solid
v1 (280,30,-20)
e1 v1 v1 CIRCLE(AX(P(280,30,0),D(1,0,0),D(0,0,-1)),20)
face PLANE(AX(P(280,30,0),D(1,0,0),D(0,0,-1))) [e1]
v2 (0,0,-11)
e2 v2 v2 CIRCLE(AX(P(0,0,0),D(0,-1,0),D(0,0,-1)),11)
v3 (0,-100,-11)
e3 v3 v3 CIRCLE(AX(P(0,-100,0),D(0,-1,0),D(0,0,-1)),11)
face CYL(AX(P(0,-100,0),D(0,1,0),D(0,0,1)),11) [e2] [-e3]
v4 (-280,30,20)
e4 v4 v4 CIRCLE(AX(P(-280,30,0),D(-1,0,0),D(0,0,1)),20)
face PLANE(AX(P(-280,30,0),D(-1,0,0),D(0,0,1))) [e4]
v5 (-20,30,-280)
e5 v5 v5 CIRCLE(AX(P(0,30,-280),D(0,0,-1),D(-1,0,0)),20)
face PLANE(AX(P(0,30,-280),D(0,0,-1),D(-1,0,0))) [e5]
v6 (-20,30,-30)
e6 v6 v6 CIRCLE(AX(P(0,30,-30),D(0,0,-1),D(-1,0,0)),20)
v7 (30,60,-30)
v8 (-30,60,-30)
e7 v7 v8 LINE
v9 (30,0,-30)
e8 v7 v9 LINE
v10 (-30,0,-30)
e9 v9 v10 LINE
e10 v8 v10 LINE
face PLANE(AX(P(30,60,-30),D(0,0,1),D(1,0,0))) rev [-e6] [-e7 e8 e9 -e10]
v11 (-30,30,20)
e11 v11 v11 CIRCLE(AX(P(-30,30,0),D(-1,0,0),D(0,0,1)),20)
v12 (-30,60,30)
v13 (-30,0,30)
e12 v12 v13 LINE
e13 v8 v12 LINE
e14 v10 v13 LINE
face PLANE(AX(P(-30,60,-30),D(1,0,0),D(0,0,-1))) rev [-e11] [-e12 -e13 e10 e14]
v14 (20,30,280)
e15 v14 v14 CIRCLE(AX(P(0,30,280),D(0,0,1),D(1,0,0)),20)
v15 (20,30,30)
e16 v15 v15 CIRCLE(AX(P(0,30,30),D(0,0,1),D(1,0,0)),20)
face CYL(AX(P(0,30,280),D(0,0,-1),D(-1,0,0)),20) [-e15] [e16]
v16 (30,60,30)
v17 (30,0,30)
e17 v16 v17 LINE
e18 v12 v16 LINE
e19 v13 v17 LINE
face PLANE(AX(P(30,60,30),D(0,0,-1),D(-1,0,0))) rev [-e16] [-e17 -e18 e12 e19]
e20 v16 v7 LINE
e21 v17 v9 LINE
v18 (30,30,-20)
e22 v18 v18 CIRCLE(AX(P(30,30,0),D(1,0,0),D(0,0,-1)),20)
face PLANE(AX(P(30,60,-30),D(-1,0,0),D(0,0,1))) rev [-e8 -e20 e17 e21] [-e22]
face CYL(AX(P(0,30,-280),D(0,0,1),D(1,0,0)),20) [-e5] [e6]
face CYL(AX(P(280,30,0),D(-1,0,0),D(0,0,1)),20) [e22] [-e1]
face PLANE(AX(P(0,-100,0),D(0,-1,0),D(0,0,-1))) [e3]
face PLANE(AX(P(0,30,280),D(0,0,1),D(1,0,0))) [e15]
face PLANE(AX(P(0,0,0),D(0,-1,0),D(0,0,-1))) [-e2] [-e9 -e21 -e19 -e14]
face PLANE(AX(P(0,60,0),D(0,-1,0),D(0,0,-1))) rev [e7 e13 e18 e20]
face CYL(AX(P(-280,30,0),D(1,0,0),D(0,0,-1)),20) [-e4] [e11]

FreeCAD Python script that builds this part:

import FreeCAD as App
import Part
import Sketcher
from FreeCAD import Vector
Q = App.Units.Quantity

doc = App.newDocument("Part")
params = doc.addObject("Spreadsheet::Sheet", "Params")
for row, (alias, value) in enumerate([
    ("sketch1_width", "60 mm"),
    ("pad1_length", "60 mm"),
    ("sketch2_diameter", "40 mm"),
    ("pad2_length", "250 mm"),
    ("sketch3_diameter", "40 mm"),
    ("pad3_length", "250 mm"),
    ("sketch4_diameter", "40 mm"),
    ("pad4_length", "250 mm"),
    ("sketch5_diameter", "40 mm"),
    ("pad5_length", "250 mm"),
    ("sketch6_diameter", "22 mm"),
    ("pad6_length", "100 mm"),
], start=1):
    params.set(f"A{row}", alias)
    params.set(f"B{row}", "=" + value)
    params.setAlias(f"B{row}", alias)

body = doc.addObject("PartDesign::Body", "Body")

sketch1 = doc.addObject("Sketcher::SketchObject", "Sketch")
body.addObject(sketch1)
sketch1.AttachmentSupport = (doc.XZ_Plane, [""])
sketch1.MapMode = "FlatFace"
sketch1.addGeometry(Part.LineSegment(Vector(-30, -30, 0), Vector(-30, 30, 0)), False)
sketch1.addGeometry(Part.LineSegment(Vector(-30, 30, 0), Vector(30, 30, 0)), False)
sketch1.addGeometry(Part.LineSegment(Vector(30, 30, 0), Vector(30, -30, 0)), False)
sketch1.addGeometry(Part.LineSegment(Vector(30, -30, 0), Vector(-30, -30, 0)), False)
sketch1.addConstraint(Sketcher.Constraint("Coincident", 0, 2, 1, 1))
sketch1.addConstraint(Sketcher.Constraint("Coincident", 1, 2, 2, 1))
sketch1.addConstraint(Sketcher.Constraint("Coincident", 2, 2, 3, 1))
sketch1.addConstraint(Sketcher.Constraint("Coincident", 3, 2, 0, 1))
sketch1.addConstraint(Sketcher.Constraint("Vertical", 0))
sketch1.addConstraint(Sketcher.Constraint("Horizontal", 1))
sketch1.addConstraint(Sketcher.Constraint("Vertical", 2))
sketch1.addConstraint(Sketcher.Constraint("Horizontal", 3))
sketch1.addConstraint(Sketcher.Constraint("Symmetric", 0, 2, 2, 2, -1, 1))
sketch1.addConstraint(Sketcher.Constraint("Equal", 3, 0))
sketch1.addConstraint(Sketcher.Constraint("DistanceX", 1, 1, 1, 2, Q("60 mm")))
sketch1.setExpression("Constraints[10]", "Params.sketch1_width")
pad1 = doc.addObject("PartDesign::Pad", "Pad")
body.addObject(pad1)
pad1.Profile = sketch1
pad1.setExpression("Length", "Params.pad1_length")
pad1.Reversed = True

sketch2 = doc.addObject("Sketcher::SketchObject", "Sketch001")
body.addObject(sketch2)
sketch2.AttachmentSupport = (doc.XY_Plane, [""])
sketch2.MapMode = "FlatFace"
sketch2.AttachmentOffset = App.Placement(Vector(0, 0, 30), App.Rotation())
sketch2.addGeometry(Part.Circle(Vector(0, 30, 0), Vector(0, 0, 1), 20), False)
sketch2.addConstraint(Sketcher.Constraint("PointOnObject", 0, 3, -2))
sketch2.addConstraint(Sketcher.Constraint("Diameter", 0, Q("40 mm")))
sketch2.addConstraint(Sketcher.Constraint("DistanceY", -1, 1, 0, 3, Q("30 mm")))
sketch2.setExpression("Constraints[1]", "Params.sketch2_diameter")
pad2 = doc.addObject("PartDesign::Pad", "Pad001")
body.addObject(pad2)
pad2.Profile = sketch2
pad2.setExpression("Length", "Params.pad2_length")

sketch3 = doc.addObject("Sketcher::SketchObject", "Sketch002")
body.addObject(sketch3)
sketch3.AttachmentSupport = (doc.YZ_Plane, [""])
sketch3.MapMode = "FlatFace"
sketch3.AttachmentOffset = App.Placement(Vector(0, 0, -30), App.Rotation())
sketch3.addGeometry(Part.Circle(Vector(30, 0, 0), Vector(0, 0, 1), 20), False)
sketch3.addConstraint(Sketcher.Constraint("PointOnObject", 0, 3, -1))
sketch3.addConstraint(Sketcher.Constraint("Diameter", 0, Q("40 mm")))
sketch3.addConstraint(Sketcher.Constraint("DistanceX", -1, 1, 0, 3, Q("30 mm")))
sketch3.setExpression("Constraints[1]", "Params.sketch3_diameter")
pad3 = doc.addObject("PartDesign::Pad", "Pad002")
body.addObject(pad3)
pad3.Profile = sketch3
pad3.setExpression("Length", "Params.pad3_length")
pad3.Reversed = True

sketch4 = doc.addObject("Sketcher::SketchObject", "Sketch003")
body.addObject(sketch4)
sketch4.AttachmentSupport = (doc.XY_Plane, [""])
sketch4.MapMode = "FlatFace"
sketch4.AttachmentOffset = App.Placement(Vector(0, 0, -280), App.Rotation())
sketch4.addGeometry(Part.Circle(Vector(0, 30, 0), Vector(0, 0, 1), 20), False)
sketch4.addConstraint(Sketcher.Constraint("PointOnObject", 0, 3, -2))
sketch4.addConstraint(Sketcher.Constraint("Diameter", 0, Q("40 mm")))
sketch4.addConstraint(Sketcher.Constraint("DistanceY", -1, 1, 0, 3, Q("30 mm")))
sketch4.setExpression("Constraints[1]", "Params.sketch4_diameter")
pad4 = doc.addObject("PartDesign::Pad", "Pad003")
body.addObject(pad4)
pad4.Profile = sketch4
pad4.setExpression("Length", "Params.pad4_length")

sketch5 = doc.addObject("Sketcher::SketchObject", "Sketch004")
body.addObject(sketch5)
sketch5.AttachmentSupport = (doc.YZ_Plane, [""])
sketch5.MapMode = "FlatFace"
sketch5.AttachmentOffset = App.Placement(Vector(0, 0, 280), App.Rotation())
sketch5.addGeometry(Part.Circle(Vector(30, 0, 0), Vector(0, 0, 1), 20), False)
sketch5.addConstraint(Sketcher.Constraint("PointOnObject", 0, 3, -1))
sketch5.addConstraint(Sketcher.Constraint("Diameter", 0, Q("40 mm")))
sketch5.addConstraint(Sketcher.Constraint("DistanceX", -1, 1, 0, 3, Q("30 mm")))
sketch5.setExpression("Constraints[1]", "Params.sketch5_diameter")
pad5 = doc.addObject("PartDesign::Pad", "Pad004")
body.addObject(pad5)
pad5.Profile = sketch5
pad5.setExpression("Length", "Params.pad5_length")
pad5.Reversed = True

sketch6 = doc.addObject("Sketcher::SketchObject", "Sketch005")
body.addObject(sketch6)
sketch6.AttachmentSupport = (doc.XZ_Plane, [""])
sketch6.MapMode = "FlatFace"
sketch6.addGeometry(Part.Circle(Vector(0, 0, 0), Vector(0, 0, 1), 11), False)
sketch6.addConstraint(Sketcher.Constraint("Coincident", 0, 3, -1, 1))
sketch6.addConstraint(Sketcher.Constraint("Diameter", 0, Q("22 mm")))
sketch6.setExpression("Constraints[1]", "Params.sketch6_diameter")
pad6 = doc.addObject("PartDesign::Pad", "Pad005")
body.addObject(pad6)
pad6.Profile = sketch6
pad6.setExpression("Length", "Params.pad6_length")

doc.recompute()
